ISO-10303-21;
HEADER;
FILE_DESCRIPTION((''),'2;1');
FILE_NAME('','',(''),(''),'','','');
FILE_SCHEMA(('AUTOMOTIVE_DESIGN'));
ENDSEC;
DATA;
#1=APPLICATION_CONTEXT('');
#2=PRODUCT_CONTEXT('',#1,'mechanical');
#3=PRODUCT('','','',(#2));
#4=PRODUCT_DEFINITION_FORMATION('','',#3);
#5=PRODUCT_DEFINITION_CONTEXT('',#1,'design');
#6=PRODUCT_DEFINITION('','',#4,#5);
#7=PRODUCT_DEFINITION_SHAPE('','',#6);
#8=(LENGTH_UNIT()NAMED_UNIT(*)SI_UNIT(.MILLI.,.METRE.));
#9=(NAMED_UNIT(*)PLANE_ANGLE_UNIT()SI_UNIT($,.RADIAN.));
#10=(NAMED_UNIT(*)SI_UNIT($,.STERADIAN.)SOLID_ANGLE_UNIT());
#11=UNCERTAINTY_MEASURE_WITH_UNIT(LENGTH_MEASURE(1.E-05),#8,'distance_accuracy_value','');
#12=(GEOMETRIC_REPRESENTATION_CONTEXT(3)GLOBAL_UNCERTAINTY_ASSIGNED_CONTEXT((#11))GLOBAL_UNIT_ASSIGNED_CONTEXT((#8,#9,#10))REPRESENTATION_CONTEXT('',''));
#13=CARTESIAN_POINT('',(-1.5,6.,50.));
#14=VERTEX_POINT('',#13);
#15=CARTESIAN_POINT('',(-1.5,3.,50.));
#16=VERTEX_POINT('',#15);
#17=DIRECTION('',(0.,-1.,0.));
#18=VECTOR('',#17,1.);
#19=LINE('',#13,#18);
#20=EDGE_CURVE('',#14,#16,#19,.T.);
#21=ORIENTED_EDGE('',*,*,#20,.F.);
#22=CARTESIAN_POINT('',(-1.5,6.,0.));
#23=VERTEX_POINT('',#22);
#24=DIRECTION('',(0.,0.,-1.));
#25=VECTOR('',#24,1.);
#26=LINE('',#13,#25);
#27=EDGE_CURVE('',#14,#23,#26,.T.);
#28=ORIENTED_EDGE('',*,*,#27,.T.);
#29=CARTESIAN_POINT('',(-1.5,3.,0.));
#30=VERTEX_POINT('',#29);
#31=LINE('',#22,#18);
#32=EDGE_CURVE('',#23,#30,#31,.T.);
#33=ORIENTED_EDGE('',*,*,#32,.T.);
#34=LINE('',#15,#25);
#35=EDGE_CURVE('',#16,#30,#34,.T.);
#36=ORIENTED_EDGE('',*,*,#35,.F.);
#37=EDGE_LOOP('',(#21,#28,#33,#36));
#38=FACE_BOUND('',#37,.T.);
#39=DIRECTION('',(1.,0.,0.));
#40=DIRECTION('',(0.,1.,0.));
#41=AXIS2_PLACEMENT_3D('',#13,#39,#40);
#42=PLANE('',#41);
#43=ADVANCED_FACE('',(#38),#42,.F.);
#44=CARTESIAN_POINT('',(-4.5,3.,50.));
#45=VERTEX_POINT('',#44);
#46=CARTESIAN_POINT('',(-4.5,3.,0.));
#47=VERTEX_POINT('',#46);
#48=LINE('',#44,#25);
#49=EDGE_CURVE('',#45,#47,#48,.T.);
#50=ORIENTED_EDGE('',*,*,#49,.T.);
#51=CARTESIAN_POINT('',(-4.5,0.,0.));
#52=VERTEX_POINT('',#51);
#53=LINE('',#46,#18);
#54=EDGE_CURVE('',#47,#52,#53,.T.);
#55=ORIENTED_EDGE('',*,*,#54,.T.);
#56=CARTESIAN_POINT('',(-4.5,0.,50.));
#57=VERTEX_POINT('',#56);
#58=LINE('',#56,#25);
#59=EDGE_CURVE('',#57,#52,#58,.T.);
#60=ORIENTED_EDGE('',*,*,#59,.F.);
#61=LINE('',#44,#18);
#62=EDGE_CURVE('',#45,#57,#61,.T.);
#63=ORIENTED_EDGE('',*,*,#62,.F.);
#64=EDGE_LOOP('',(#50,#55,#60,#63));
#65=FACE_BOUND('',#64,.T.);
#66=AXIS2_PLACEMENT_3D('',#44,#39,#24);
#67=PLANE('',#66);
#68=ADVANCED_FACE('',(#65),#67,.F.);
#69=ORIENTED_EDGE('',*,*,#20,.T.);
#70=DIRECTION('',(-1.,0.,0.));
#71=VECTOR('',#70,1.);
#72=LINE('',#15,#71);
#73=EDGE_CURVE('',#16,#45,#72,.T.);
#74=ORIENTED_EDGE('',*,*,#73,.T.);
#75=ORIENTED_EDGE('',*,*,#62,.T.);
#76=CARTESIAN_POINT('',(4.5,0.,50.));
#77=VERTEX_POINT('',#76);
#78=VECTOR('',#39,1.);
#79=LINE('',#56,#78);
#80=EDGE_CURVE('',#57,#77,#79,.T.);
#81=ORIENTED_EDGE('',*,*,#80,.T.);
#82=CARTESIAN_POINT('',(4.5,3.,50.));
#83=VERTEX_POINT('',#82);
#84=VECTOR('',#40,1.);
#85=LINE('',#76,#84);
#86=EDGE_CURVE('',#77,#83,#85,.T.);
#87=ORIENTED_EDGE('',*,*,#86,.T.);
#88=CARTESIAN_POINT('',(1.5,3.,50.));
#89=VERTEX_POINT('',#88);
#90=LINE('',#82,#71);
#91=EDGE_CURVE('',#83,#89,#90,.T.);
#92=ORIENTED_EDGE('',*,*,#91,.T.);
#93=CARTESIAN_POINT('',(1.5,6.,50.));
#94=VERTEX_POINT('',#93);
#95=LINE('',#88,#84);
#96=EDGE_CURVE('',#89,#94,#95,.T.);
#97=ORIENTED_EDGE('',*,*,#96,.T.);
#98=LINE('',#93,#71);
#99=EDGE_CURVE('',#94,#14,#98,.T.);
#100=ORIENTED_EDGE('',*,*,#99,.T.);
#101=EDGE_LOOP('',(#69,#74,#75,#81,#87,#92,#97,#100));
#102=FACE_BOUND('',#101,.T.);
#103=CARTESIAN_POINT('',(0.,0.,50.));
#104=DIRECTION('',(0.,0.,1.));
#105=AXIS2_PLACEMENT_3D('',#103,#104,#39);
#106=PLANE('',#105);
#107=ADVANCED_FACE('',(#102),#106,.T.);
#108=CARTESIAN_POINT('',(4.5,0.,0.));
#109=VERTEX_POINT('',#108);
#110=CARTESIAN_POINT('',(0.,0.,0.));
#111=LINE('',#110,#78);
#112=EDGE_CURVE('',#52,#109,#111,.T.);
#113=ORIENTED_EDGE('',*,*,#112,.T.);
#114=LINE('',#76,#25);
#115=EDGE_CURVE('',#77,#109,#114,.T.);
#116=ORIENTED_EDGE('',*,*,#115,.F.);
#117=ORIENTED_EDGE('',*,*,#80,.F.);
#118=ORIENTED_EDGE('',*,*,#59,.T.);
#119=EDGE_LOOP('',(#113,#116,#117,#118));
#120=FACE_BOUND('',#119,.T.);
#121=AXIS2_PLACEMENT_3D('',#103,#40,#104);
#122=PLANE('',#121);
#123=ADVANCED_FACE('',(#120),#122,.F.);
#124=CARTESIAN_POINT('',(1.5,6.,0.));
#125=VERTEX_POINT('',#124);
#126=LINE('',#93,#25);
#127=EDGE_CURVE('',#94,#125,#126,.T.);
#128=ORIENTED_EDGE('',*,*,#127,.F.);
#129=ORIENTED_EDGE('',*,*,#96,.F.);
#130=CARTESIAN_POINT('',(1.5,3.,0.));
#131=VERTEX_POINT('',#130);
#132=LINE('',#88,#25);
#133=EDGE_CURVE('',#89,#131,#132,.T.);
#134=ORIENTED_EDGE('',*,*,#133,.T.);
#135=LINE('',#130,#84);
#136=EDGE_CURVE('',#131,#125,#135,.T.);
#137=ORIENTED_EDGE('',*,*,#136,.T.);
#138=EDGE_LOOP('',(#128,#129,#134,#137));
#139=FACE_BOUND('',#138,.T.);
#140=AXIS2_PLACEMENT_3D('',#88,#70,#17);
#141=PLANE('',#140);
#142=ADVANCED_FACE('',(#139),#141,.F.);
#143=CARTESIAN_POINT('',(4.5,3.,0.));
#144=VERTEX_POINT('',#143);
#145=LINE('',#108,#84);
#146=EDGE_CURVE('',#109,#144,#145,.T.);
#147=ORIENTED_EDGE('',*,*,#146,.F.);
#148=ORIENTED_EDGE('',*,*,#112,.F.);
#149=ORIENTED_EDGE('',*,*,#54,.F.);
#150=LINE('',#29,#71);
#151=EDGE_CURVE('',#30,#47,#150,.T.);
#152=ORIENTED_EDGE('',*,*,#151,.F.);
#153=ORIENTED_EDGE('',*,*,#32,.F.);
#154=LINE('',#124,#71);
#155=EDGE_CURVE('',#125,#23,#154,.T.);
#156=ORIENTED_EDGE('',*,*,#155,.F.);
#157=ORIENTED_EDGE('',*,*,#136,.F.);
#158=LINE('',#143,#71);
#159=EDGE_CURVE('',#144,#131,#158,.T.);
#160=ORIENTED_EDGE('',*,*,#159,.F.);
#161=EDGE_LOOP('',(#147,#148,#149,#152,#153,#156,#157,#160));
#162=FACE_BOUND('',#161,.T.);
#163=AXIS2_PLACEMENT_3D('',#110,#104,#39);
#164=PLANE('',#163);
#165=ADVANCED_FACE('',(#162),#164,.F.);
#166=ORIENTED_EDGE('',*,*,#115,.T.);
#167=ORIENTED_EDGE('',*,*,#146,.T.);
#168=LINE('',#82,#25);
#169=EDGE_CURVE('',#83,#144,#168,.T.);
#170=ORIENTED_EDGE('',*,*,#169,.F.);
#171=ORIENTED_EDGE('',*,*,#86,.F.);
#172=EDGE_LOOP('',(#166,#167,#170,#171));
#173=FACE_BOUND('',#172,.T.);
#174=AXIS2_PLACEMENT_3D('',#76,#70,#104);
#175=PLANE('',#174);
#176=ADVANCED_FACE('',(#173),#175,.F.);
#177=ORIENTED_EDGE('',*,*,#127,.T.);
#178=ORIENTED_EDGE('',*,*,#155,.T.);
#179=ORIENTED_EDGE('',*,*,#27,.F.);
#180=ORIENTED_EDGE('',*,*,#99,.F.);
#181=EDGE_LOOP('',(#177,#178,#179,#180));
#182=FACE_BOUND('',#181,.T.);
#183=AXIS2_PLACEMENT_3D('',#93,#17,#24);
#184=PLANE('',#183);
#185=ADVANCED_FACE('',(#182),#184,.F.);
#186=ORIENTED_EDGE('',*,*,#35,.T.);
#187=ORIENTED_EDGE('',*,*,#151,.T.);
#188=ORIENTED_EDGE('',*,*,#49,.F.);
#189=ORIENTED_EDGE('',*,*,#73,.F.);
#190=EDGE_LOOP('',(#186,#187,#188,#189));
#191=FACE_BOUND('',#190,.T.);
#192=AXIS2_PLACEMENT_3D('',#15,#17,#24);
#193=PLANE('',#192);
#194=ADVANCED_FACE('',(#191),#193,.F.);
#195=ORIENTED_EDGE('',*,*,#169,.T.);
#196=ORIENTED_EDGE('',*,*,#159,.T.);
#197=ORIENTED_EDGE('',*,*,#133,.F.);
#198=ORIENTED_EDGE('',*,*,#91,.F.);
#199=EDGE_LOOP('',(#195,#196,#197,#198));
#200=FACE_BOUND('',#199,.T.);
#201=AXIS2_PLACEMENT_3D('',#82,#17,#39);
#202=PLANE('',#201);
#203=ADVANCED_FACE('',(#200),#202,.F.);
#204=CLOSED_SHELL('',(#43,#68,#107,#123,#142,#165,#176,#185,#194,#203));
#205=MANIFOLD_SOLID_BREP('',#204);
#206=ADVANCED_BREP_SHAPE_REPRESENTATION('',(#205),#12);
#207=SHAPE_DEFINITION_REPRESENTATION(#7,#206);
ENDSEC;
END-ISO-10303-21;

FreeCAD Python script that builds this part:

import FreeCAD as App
import Part
import Sketcher
Q = App.Units.Quantity

doc = App.newDocument("Part")
body = doc.addObject("PartDesign::Body", "Body")

# Sketch on XY plane
sketch1 = doc.addObject("Sketcher::SketchObject", "Sketch")
body.addObject(sketch1)
sketch1.AttachmentSupport = (doc.XY_Plane, [""])
sketch1.MapMode = "FlatFace"
sketch1.addGeometry([
    Part.LineSegment(App.Vector(4.5, 0, 0), App.Vector(4.5, 3, 0)),  # 0
    Part.LineSegment(App.Vector(4.5, 3, 0), App.Vector(1.5, 3, 0)),  # 1
    Part.LineSegment(App.Vector(1.5, 3, 0), App.Vector(1.5, 6, 0)),  # 2
    Part.LineSegment(App.Vector(1.5, 6, 0), App.Vector(-1.5, 6, 0)),  # 3
    Part.LineSegment(App.Vector(-1.5, 6, 0), App.Vector(-1.5, 3, 0)),  # 4
    Part.LineSegment(App.Vector(-1.5, 3, 0), App.Vector(-4.5, 3, 0)),  # 5
    Part.LineSegment(App.Vector(-4.5, 3, 0), App.Vector(-4.5, 0, 0)),  # 6
    Part.LineSegment(App.Vector(-4.5, 0, 0), App.Vector(4.5, 0, 0)),  # 7
], False)
sketch1.addConstraint([
    Sketcher.Constraint("Coincident", 0, 2, 1, 1),
    Sketcher.Constraint("Coincident", 1, 2, 2, 1),
    Sketcher.Constraint("Coincident", 2, 2, 3, 1),
    Sketcher.Constraint("Coincident", 3, 2, 4, 1),
    Sketcher.Constraint("Coincident", 4, 2, 5, 1),
    Sketcher.Constraint("Coincident", 5, 2, 6, 1),
    Sketcher.Constraint("Coincident", 6, 2, 7, 1),
    Sketcher.Constraint("Coincident", 7, 2, 0, 1),
    Sketcher.Constraint("Vertical", 0),
    Sketcher.Constraint("Horizontal", 1),
    Sketcher.Constraint("Vertical", 2),
    Sketcher.Constraint("Horizontal", 3),
    Sketcher.Constraint("Vertical", 4),
    Sketcher.Constraint("Horizontal", 5),
    Sketcher.Constraint("Vertical", 6),
    Sketcher.Constraint("Horizontal", 7),
    Sketcher.Constraint("Symmetric", 6, 2, 7, 2, -1, 1),
    Sketcher.Constraint("Symmetric", 1, 2, 4, 2, -2),
    Sketcher.Constraint("Equal", 1, 3),
    Sketcher.Constraint("Equal", 5, 0),
    Sketcher.Constraint("Equal", 0, 2),
    Sketcher.Constraint("DistanceX", 1, 2, 1, 1, Q("3 mm")),
])
pad1 = doc.addObject("PartDesign::Pad", "Pad")
body.addObject(pad1)
pad1.Profile = sketch1
pad1.Length = 50

doc.recompute()
